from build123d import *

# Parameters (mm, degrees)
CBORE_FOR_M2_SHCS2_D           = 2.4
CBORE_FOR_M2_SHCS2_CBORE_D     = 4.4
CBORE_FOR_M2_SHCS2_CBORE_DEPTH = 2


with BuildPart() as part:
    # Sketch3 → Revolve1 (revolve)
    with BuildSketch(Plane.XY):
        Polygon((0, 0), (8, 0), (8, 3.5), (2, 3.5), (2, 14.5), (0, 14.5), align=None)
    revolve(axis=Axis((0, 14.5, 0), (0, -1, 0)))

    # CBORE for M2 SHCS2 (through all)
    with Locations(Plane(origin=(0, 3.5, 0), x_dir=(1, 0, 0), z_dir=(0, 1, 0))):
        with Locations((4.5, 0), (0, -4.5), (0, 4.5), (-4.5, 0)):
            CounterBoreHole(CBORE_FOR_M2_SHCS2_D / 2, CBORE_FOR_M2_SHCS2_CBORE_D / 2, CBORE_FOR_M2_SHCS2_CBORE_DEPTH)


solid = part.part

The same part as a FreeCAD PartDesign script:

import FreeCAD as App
import Part
import Sketcher


def add_polygon(sketch, points):
    """Adds a closed chain of lines whose ends are joined by coincident constraints."""
    first, n = sketch.GeometryCount, len(points)
    for a, b in zip(points, points[1:] + points[:1]):
        sketch.addGeometry(Part.LineSegment(App.Vector(*a, 0), App.Vector(*b, 0)), False)
    for i in range(n):
        sketch.addConstraint(Sketcher.Constraint("Coincident", first + i, 2, first + (i + 1) % n, 1))

doc = App.newDocument("Part")
params = doc.addObject("Spreadsheet::Sheet", "Params")
for row, (alias, value) in enumerate([
    ("sketch1_width", "8 mm"),
    ("sketch1_width2", "6 mm"),
    ("sketch1_height", "11 mm"),
    ("sketch1_height2", "3.5 mm"),
    ("revolution_angle", "360 deg"),
    ("sketch2_diameter", "2.4 mm"),
    ("hole_diameter", "2.4 mm"),
    ("hole_cbore_diameter", "4.4 mm"),
    ("hole_cbore_depth", "2 mm"),
], start=1):
    params.set(f"A{row}", alias)
    params.set(f"B{row}", "=" + value)
    params.setAlias(f"B{row}", alias)

body = doc.addObject("PartDesign::Body", "Body")

sketch1 = doc.addObject("Sketcher::SketchObject", "Sketch")
body.addObject(sketch1)
sketch1.AttachmentSupport = (doc.XY_Plane, [""])
sketch1.MapMode = "FlatFace"
add_polygon(sketch1, [(0, 0), (8, 0), (8, 3.5), (2, 3.5), (2, 14.5), (0, 14.5)])
sketch1.addConstraint([
    Sketcher.Constraint("Horizontal", 0),
    Sketcher.Constraint("Vertical", 1),
    Sketcher.Constraint("Horizontal", 2),
    Sketcher.Constraint("Vertical", 3),
    Sketcher.Constraint("Horizontal", 4),
    Sketcher.Constraint("Vertical", 5),
    Sketcher.Constraint("Coincident", 5, 2, -1, 1),
    Sketcher.Constraint("DistanceX", 0, 1, 0, 2, 8.0),
    Sketcher.Constraint("DistanceX", 2, 2, 2, 1, 6.0),
    Sketcher.Constraint("DistanceY", 3, 1, 3, 2, 11.0),
    Sketcher.Constraint("DistanceY", 1, 1, 1, 2, 3.5),
])
sketch1.setExpression("Constraints[13]", "Params.sketch1_width")
sketch1.setExpression("Constraints[14]", "Params.sketch1_width2")
sketch1.setExpression("Constraints[15]", "Params.sketch1_height")
sketch1.setExpression("Constraints[16]", "Params.sketch1_height2")
revolution = doc.addObject("PartDesign::Revolution", "Revolution")
body.addObject(revolution)
revolution.Profile = sketch1
revolution.ReferenceAxis = (sketch1, ["V_Axis"])
revolution.setExpression("Angle", "Params.revolution_angle")

sketch2 = doc.addObject("Sketcher::SketchObject", "Sketch001")
body.addObject(sketch2)
sketch2.AttachmentSupport = (doc.XZ_Plane, [""])
sketch2.MapMode = "FlatFace"
sketch2.AttachmentOffset = App.Placement(App.Vector(0, 0, -3.5), App.Rotation())
sketch2.addGeometry([
    Part.Circle(App.Vector(4.5, 0, 0), App.Vector(0, 0, 1), 1.2),
    Part.Circle(App.Vector(0, 4.5, 0), App.Vector(0, 0, 1), 1.2),
    Part.Circle(App.Vector(0, -4.5, 0), App.Vector(0, 0, 1), 1.2),
    Part.Circle(App.Vector(-4.5, 0, 0), App.Vector(0, 0, 1), 1.2),
], False)
sketch2.addConstraint([
    Sketcher.Constraint("Equal", 0, 1),
    Sketcher.Constraint("Equal", 1, 2),
    Sketcher.Constraint("Equal", 2, 3),
    Sketcher.Constraint("Symmetric", 1, 3, 2, 3, -1, 1),
    Sketcher.Constraint("Symmetric", 0, 3, 3, 3, -1, 1),
    Sketcher.Constraint("PointOnObject", 0, 3, -1),
    Sketcher.Constraint("PointOnObject", 1, 3, -2),
    Sketcher.Constraint("Diameter", 0, 2.4),
    Sketcher.Constraint("DistanceY", 2, 3, 1, 3, 9.0),
    Sketcher.Constraint("DistanceX", 3, 3, 0, 3, 9.0),
])
sketch2.setExpression("Constraints[7]", "Params.sketch2_diameter")
doc.recompute()
hole = doc.addObject("PartDesign::Hole", "Hole")
body.addObject(hole)
hole.Profile = sketch2
hole.ThreadType = "None"
hole.setExpression("Diameter", "Params.hole_diameter")
hole.DepthType = "ThroughAll"
hole.HoleCutType = "Counterbore"
hole.setExpression("HoleCutDiameter", "Params.hole_cbore_diameter")
hole.setExpression("HoleCutDepth", "Params.hole_cbore_depth")
hole.Reversed = True

doc.recompute()
